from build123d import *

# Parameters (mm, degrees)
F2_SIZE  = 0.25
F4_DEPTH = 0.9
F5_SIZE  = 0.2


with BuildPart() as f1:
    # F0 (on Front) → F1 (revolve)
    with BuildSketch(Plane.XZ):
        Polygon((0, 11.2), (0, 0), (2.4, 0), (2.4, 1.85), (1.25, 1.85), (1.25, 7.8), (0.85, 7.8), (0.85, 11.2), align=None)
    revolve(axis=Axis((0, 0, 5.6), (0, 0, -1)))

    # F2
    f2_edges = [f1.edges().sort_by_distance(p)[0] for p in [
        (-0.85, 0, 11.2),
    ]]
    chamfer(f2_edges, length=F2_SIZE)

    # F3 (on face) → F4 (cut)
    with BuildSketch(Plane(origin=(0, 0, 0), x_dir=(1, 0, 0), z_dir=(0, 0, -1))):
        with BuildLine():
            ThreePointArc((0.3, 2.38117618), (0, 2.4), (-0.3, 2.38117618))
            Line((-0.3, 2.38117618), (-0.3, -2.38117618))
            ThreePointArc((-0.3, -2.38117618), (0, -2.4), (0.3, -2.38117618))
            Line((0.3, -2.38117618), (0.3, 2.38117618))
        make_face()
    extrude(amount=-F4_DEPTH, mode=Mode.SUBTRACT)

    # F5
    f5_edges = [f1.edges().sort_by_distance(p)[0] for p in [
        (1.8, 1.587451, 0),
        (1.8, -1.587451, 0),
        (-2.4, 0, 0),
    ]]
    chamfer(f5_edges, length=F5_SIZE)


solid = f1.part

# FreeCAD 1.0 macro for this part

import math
import FreeCAD as App
import Part
import Sketcher
Q = App.Units.Quantity


def edges_at(feature, points):
    """Names of the edges that pass closest to the given points."""
    edges = feature.Shape.Edges
    near = lambda p: min(range(len(edges)), key=lambda i: edges[i].distToShape(Part.Vertex(*p))[0])
    return sorted({f"Edge{near(p) + 1}" for p in points})

doc = App.newDocument("Part")
body = doc.addObject("PartDesign::Body", "Body")

# Sketch on XZ plane
sketch1 = body.newObject("Sketcher::SketchObject", "Sketch")
sketch1.AttachmentSupport = (doc.getObject("XZ_Plane"), [""])
sketch1.MapMode = "FlatFace"
sketch1.addGeometry(Part.LineSegment(App.Vector(0, 11.2, 0), App.Vector(0, 0, 0)), False)
sketch1.addGeometry(Part.LineSegment(App.Vector(0, 0, 0), App.Vector(2.4, 0, 0)), False)
sketch1.addGeometry(Part.LineSegment(App.Vector(2.4, 0, 0), App.Vector(2.4, 1.85, 0)), False)
sketch1.addGeometry(Part.LineSegment(App.Vector(2.4, 1.85, 0), App.Vector(1.25, 1.85, 0)), False)
sketch1.addGeometry(Part.LineSegment(App.Vector(1.25, 1.85, 0), App.Vector(1.25, 7.8, 0)), False)
sketch1.addGeometry(Part.LineSegment(App.Vector(1.25, 7.8, 0), App.Vector(0.85, 7.8, 0)), False)
sketch1.addGeometry(Part.LineSegment(App.Vector(0.85, 7.8, 0), App.Vector(0.85, 11.2, 0)), False)
sketch1.addGeometry(Part.LineSegment(App.Vector(0.85, 11.2, 0), App.Vector(0, 11.2, 0)), False)
sketch1.addConstraint(Sketcher.Constraint("Coincident", 0, 2, 1, 1))
sketch1.addConstraint(Sketcher.Constraint("Coincident", 1, 2, 2, 1))
sketch1.addConstraint(Sketcher.Constraint("Coincident", 2, 2, 3, 1))
sketch1.addConstraint(Sketcher.Constraint("Coincident", 3, 2, 4, 1))
sketch1.addConstraint(Sketcher.Constraint("Coincident", 4, 2, 5, 1))
sketch1.addConstraint(Sketcher.Constraint("Coincident", 5, 2, 6, 1))
sketch1.addConstraint(Sketcher.Constraint("Coincident", 6, 2, 7, 1))
sketch1.addConstraint(Sketcher.Constraint("Coincident", 7, 2, 0, 1))
sketch1.addConstraint(Sketcher.Constraint("Vertical", 0))
sketch1.addConstraint(Sketcher.Constraint("Horizontal", 1))
sketch1.addConstraint(Sketcher.Constraint("Vertical", 2))
sketch1.addConstraint(Sketcher.Constraint("Horizontal", 3))
sketch1.addConstraint(Sketcher.Constraint("Vertical", 4))
sketch1.addConstraint(Sketcher.Constraint("Horizontal", 5))
sketch1.addConstraint(Sketcher.Constraint("Vertical", 6))
sketch1.addConstraint(Sketcher.Constraint("Horizontal", 7))
sketch1.addConstraint(Sketcher.Constraint("Coincident", 0, 2, -1, 1))
sketch1.addConstraint(Sketcher.Constraint("DistanceX", 1, 1, 1, 2, Q("2.4 mm")))
sketch1.addConstraint(Sketcher.Constraint("DistanceX", 5, 2, 5, 1, Q("0.4 mm")))
sketch1.addConstraint(Sketcher.Constraint("DistanceY", 0, 2, 0, 1, Q("11.2 mm")))
sketch1.addConstraint(Sketcher.Constraint("DistanceY", 6, 1, 6, 2, Q("3.4 mm")))
sketch1.addConstraint(Sketcher.Constraint("DistanceX", 3, 2, 3, 1, Q("1.15 mm")))
sketch1.addConstraint(Sketcher.Constraint("DistanceY", 2, 1, 2, 2, Q("1.85 mm")))
revolution = body.newObject("PartDesign::Revolution", "Revolution")
revolution.Profile = sketch1
revolution.ReferenceAxis = (sketch1, ["V_Axis"])
revolution.Angle = 360
doc.recompute()

chamfer = body.newObject("PartDesign::Chamfer", "Chamfer")
chamfer.Base = (revolution, edges_at(revolution, [(-0.85, 0, 11.2)]))
chamfer.Size = 0.25

# Sketch on XY plane
sketch2 = body.newObject("Sketcher::SketchObject", "Sketch001")
sketch2.AttachmentSupport = (doc.getObject("XY_Plane"), [""])
sketch2.MapMode = "FlatFace"
sketch2.addGeometry(Part.ArcOfCircle(Part.Circle(App.Vector(0, 0, 0), App.Vector(0, 0, 1), 2.4), math.radians(-97.180756), math.radians(-82.819244)), False)
sketch2.addGeometry(Part.LineSegment(App.Vector(-0.3, -2.381176, 0), App.Vector(-0.3, 2.381176, 0)), False)
sketch2.addGeometry(Part.ArcOfCircle(Part.Circle(App.Vector(0, 0, 0), App.Vector(0, 0, 1), 2.4), math.radians(82.819244), math.radians(97.180756)), False)
sketch2.addGeometry(Part.LineSegment(App.Vector(0.3, 2.381176, 0), App.Vector(0.3, -2.381176, 0)), False)
sketch2.addConstraint(Sketcher.Constraint("Coincident", 0, 1, 1, 1))
sketch2.addConstraint(Sketcher.Constraint("Coincident", 1, 2, 2, 2))
sketch2.addConstraint(Sketcher.Constraint("Coincident", 2, 1, 3, 1))
sketch2.addConstraint(Sketcher.Constraint("Coincident", 3, 2, 0, 2))
sketch2.addConstraint(Sketcher.Constraint("Vertical", 1))
sketch2.addConstraint(Sketcher.Constraint("Vertical", 3))
sketch2.addConstraint(Sketcher.Constraint("Coincident", 0, 3, -1, 1))
sketch2.addConstraint(Sketcher.Constraint("Coincident", 2, 3, -1, 1))
sketch2.addConstraint(Sketcher.Constraint("Equal", 0, 2))
sketch2.addConstraint(Sketcher.Constraint("Horizontal", 1, 2, 2, 1))
sketch2.addConstraint(Sketcher.Constraint("Radius", 0, Q("2.4 mm")))
sketch2.addConstraint(Sketcher.Constraint("DistanceX", 0, 1, -1, 1, Q("0.3 mm")))
pocket1 = body.newObject("PartDesign::Pocket", "Pocket")
pocket1.Profile = sketch2
pocket1.Length = 0.9
pocket1.Reversed = True
doc.recompute()

chamfer2 = body.newObject("PartDesign::Chamfer", "Chamfer001")
chamfer2.Base = (pocket1, edges_at(pocket1, [(1.8, 1.587, 0), (1.8, -1.587, 0), (-2.4, 0, 0)]))
chamfer2.Size = 0.2

doc.recompute()
